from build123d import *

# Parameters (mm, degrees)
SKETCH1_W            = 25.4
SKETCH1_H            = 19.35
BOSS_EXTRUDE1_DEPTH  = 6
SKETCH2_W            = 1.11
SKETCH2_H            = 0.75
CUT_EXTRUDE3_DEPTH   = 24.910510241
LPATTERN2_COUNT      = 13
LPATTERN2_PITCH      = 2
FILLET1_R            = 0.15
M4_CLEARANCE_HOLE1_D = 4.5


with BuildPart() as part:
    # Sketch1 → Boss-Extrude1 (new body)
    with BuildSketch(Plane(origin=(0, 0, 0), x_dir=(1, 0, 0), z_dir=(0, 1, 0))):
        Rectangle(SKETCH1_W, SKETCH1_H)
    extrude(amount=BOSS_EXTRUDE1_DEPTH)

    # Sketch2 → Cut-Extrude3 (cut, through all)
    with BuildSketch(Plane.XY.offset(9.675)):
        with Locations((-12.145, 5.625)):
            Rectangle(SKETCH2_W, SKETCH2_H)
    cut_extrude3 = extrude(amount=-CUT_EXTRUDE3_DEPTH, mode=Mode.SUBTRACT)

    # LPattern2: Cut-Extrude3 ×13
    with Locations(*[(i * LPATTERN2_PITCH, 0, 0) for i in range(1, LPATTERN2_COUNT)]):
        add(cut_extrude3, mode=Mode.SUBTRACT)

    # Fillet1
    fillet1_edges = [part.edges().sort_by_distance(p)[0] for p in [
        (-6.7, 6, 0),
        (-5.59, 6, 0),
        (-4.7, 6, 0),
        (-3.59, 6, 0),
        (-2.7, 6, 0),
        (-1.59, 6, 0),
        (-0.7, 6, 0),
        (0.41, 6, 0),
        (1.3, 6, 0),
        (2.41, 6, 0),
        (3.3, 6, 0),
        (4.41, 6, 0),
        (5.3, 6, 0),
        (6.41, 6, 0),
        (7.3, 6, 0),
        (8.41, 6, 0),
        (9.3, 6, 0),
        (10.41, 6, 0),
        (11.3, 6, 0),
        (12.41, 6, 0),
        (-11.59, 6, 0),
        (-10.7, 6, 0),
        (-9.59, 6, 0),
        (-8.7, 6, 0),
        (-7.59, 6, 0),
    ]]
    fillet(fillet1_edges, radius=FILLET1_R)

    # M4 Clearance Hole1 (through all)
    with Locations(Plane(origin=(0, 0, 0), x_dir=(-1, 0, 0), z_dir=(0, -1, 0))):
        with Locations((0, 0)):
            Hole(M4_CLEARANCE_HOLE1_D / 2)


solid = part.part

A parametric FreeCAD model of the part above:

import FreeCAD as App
import Part
import Sketcher
from FreeCAD import Vector


def edges_at(feature, points):
    """Names of the edges that pass closest to the given points."""
    edges = feature.Shape.Edges
    near = lambda p: min(range(len(edges)), key=lambda i: edges[i].distToShape(Part.Vertex(*p))[0])
    return sorted({f"Edge{near(p) + 1}" for p in points})

doc = App.newDocument("Part")
params = doc.addObject("Spreadsheet::Sheet", "Params")
for row, (alias, value) in enumerate([
    ("sketch1_width", "25.4 mm"),
    ("sketch1_height", "19.35 mm"),
    ("pad1_length", "6 mm"),
    ("sketch2_width", "1.11 mm"),
    ("sketch2_height", "0.75 mm"),
    ("linearpattern_pitch", "2 mm"),
    ("fillet_radius", "0.15 mm"),
    ("sketch3_diameter", "4.5 mm"),
    ("hole_diameter", "4.5 mm"),
], start=1):
    params.set(f"A{row}", alias)
    params.set(f"B{row}", "=" + value)
    params.setAlias(f"B{row}", alias)

body = doc.addObject("PartDesign::Body", "Body")

# Sketch on XZ plane
sketch1 = body.newObject("Sketcher::SketchObject", "Sketch")
sketch1.AttachmentSupport = (doc.getObject("XZ_Plane"), [""])
sketch1.MapMode = "FlatFace"
sketch1.addGeometry([
    Part.LineSegment(Vector(-13, -10, 0), Vector(-13, 10, 0)),
    Part.LineSegment(Vector(-13, 10, 0), Vector(13, 10, 0)),
    Part.LineSegment(Vector(13, 10, 0), Vector(13, -10, 0)),
    Part.LineSegment(Vector(13, -10, 0), Vector(-13, -10, 0)),
], False)
sketch1.addConstraint([
    Sketcher.Constraint("Coincident", 0, 2, 1, 1),
    Sketcher.Constraint("Coincident", 1, 2, 2, 1),
    Sketcher.Constraint("Coincident", 2, 2, 3, 1),
    Sketcher.Constraint("Coincident", 3, 2, 0, 1),
    Sketcher.Constraint("Vertical", 0),
    Sketcher.Constraint("Horizontal", 1),
    Sketcher.Constraint("Vertical", 2),
    Sketcher.Constraint("Horizontal", 3),
    Sketcher.Constraint("Symmetric", 0, 2, 2, 2, -1, 1),
    Sketcher.Constraint("DistanceX", 1, 1, 1, 2, 25.4),
    Sketcher.Constraint("DistanceY", 0, 1, 0, 2, 19.35),
])
sketch1.setExpression("Constraints[9]", "Params.sketch1_width")
sketch1.setExpression("Constraints[10]", "Params.sketch1_height")
pad1 = body.newObject("PartDesign::Pad", "Pad")
pad1.Profile = sketch1
pad1.setExpression("Length", "Params.pad1_length")
pad1.Reversed = True

# Sketch on XY plane
sketch2 = body.newObject("Sketcher::SketchObject", "Sketch001")
sketch2.AttachmentSupport = (doc.getObject("XY_Plane"), [""])
sketch2.MapMode = "FlatFace"
sketch2.AttachmentOffset = App.Placement(Vector(0, 0, 9.675), App.Rotation())
sketch2.addGeometry([
    Part.LineSegment(Vector(-12.7, 6, 0), Vector(-12.7, 5.2, 0)),
    Part.LineSegment(Vector(-12.7, 5.2, 0), Vector(-11.6, 5.2, 0)),
    Part.LineSegment(Vector(-11.6, 5.2, 0), Vector(-11.6, 6, 0)),
    Part.LineSegment(Vector(-11.6, 6, 0), Vector(-12.7, 6, 0)),
], False)
sketch2.addConstraint([
    Sketcher.Constraint("Coincident", 0, 2, 1, 1),
    Sketcher.Constraint("Coincident", 1, 2, 2, 1),
    Sketcher.Constraint("Coincident", 2, 2, 3, 1),
    Sketcher.Constraint("Coincident", 3, 2, 0, 1),
    Sketcher.Constraint("Vertical", 0),
    Sketcher.Constraint("Horizontal", 1),
    Sketcher.Constraint("Vertical", 2),
    Sketcher.Constraint("Horizontal", 3),
    Sketcher.Constraint("DistanceY", -1, 1, 2, 2, 6.0),
    Sketcher.Constraint("DistanceX", 1, 1, 1, 2, 1.11),
    Sketcher.Constraint("DistanceY", 0, 2, 0, 1, 0.75),
    Sketcher.Constraint("DistanceX", 0, 2, -1, 1, 12.7),
])
sketch2.setExpression("Constraints[9]", "Params.sketch2_width")
sketch2.setExpression("Constraints[10]", "Params.sketch2_height")
pocket1 = body.newObject("PartDesign::Pocket", "Pocket")
pocket1.Profile = sketch2
pocket1.Type = "ThroughAll"
doc.recompute()

linearpattern = body.newObject("PartDesign::LinearPattern", "LinearPattern")
linearpattern.Originals = [pocket1]
linearpattern.Direction = (doc.getObject("X_Axis"), [""])
linearpattern.Mode = "offset"
linearpattern.setExpression("Offset", "Params.linearpattern_pitch")
linearpattern.Occurrences = 13
body.Tip = linearpattern
doc.recompute()

fillet = body.newObject("PartDesign::Fillet", "Fillet")
fillet.Base = (linearpattern, edges_at(linearpattern, [
    (-6.7, 6, 0),
    (-5.59, 6, 0),
    (-4.7, 6, 0),
    (-3.59, 6, 0),
    (-2.7, 6, 0),
    (-1.59, 6, 0),
    (-0.7, 6, 0),
    (0.41, 6, 0),
    (1.3, 6, 0),
    (2.41, 6, 0),
    (3.3, 6, 0),
    (4.41, 6, 0),
    (5.3, 6, 0),
    (6.41, 6, 0),
    (7.3, 6, 0),
    (8.41, 6, 0),
    (9.3, 6, 0),
    (10.41, 6, 0),
    (11.3, 6, 0),
    (12.41, 6, 0),
    (-11.59, 6, 0),
    (-10.7, 6, 0),
    (-9.59, 6, 0),
    (-8.7, 6, 0),
    (-7.59, 6, 0),
]))
fillet.setExpression("Radius", "Params.fillet_radius")

# Sketch on XZ plane
sketch3 = body.newObject("Sketcher::SketchObject", "Sketch002")
sketch3.AttachmentSupport = (doc.getObject("XZ_Plane"), [""])
sketch3.MapMode = "FlatFace"
sketch3.addGeometry(Part.Circle(Vector(0, 0, 0), Vector(0, 0, 1), 2.2), False)
sketch3.addConstraint([
    Sketcher.Constraint("Coincident", 0, 3, -1, 1),
    Sketcher.Constraint("Diameter", 0, 4.5),
])
sketch3.setExpression("Constraints[1]", "Params.sketch3_diameter")
doc.recompute()
hole = body.newObject("PartDesign::Hole", "Hole")
hole.Profile = sketch3
hole.ThreadType = "None"
hole.setExpression("Diameter", "Params.hole_diameter")
hole.DepthType = "ThroughAll"

doc.recompute()
